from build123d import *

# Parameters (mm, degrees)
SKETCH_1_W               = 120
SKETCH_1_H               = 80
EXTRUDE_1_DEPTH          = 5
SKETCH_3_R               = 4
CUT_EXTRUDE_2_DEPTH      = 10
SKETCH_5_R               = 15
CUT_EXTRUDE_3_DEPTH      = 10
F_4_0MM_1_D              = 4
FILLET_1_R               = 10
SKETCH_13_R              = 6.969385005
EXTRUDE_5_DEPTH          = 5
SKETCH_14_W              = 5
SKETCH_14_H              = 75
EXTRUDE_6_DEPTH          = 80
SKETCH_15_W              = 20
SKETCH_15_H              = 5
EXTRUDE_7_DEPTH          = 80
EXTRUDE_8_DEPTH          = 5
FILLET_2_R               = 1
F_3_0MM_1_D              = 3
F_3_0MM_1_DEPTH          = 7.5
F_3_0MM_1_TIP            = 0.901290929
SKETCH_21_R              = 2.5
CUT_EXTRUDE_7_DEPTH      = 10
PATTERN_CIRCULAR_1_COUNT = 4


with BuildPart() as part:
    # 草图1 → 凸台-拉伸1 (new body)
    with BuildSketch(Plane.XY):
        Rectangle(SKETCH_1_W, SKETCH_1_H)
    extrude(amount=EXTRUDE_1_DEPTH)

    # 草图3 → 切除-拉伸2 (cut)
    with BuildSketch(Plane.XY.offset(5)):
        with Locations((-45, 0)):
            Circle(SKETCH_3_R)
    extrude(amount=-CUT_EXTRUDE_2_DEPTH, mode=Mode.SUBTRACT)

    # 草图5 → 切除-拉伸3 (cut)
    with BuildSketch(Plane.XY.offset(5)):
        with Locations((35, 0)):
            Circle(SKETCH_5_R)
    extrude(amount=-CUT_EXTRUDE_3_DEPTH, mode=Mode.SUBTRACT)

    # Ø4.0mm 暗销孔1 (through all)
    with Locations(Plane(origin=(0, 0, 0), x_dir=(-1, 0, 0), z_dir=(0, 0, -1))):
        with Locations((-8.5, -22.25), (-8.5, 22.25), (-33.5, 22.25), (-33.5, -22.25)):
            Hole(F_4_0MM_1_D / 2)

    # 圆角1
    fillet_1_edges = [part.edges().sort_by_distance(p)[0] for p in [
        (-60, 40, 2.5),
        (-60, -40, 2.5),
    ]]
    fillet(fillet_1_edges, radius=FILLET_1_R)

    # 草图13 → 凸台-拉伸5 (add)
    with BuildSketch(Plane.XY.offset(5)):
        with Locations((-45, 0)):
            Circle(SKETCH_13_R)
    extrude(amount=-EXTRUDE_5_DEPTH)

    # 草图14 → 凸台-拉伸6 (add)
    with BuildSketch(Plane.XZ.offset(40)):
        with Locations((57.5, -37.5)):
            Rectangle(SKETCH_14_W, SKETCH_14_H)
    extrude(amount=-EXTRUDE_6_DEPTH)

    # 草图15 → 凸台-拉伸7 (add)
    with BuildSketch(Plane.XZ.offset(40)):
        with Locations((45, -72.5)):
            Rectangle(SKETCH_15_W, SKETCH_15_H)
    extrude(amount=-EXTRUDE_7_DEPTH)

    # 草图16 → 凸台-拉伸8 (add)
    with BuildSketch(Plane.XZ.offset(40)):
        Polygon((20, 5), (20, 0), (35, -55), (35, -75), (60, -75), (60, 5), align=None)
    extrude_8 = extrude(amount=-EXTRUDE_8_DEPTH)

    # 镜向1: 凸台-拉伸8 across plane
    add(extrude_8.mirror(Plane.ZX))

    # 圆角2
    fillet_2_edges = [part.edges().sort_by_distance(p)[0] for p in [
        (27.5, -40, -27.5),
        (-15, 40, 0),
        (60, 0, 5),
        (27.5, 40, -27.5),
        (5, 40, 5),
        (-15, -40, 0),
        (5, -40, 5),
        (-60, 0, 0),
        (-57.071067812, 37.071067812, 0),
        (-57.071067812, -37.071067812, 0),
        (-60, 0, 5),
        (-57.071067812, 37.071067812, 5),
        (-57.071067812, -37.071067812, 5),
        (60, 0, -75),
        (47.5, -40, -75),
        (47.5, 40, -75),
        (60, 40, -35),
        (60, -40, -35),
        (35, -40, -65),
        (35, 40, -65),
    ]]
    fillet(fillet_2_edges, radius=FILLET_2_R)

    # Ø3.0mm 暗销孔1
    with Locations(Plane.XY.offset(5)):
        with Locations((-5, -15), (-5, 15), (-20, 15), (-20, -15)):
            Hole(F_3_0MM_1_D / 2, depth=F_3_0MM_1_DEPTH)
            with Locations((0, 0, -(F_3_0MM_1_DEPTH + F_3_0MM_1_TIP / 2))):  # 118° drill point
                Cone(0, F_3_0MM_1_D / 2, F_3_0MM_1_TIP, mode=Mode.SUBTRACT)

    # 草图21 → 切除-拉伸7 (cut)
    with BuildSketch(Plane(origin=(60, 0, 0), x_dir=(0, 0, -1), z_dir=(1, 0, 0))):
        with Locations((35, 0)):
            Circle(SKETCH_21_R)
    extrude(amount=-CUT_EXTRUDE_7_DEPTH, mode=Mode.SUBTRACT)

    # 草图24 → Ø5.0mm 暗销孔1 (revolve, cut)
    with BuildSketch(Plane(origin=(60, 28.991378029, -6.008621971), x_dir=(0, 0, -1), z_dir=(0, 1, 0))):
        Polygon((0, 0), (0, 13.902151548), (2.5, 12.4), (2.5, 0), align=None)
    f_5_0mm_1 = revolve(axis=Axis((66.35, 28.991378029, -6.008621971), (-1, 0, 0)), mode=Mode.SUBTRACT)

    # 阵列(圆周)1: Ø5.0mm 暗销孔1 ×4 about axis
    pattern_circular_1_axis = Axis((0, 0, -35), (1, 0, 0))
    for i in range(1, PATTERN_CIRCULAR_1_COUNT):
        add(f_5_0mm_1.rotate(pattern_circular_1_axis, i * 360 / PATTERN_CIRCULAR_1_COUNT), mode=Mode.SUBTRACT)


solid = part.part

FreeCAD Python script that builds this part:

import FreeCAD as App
import Part
import Sketcher
Q = App.Units.Quantity


def edges_at(feature, points):
    """Names of the edges that pass closest to the given points."""
    edges = feature.Shape.Edges
    near = lambda p: min(range(len(edges)), key=lambda i: edges[i].distToShape(Part.Vertex(*p))[0])
    return sorted({f"Edge{near(p) + 1}" for p in points})

doc = App.newDocument("Part")
body = doc.addObject("PartDesign::Body", "Body")

# Sketch on XY plane
sketch1 = body.newObject("Sketcher::SketchObject", "Sketch")
sketch1.AttachmentSupport = (doc.getObject("XY_Plane"), [""])
sketch1.MapMode = "FlatFace"
sketch1.addGeometry(Part.LineSegment(App.Vector(-60, 40, 0), App.Vector(-60, -40, 0)), False)
sketch1.addGeometry(Part.LineSegment(App.Vector(-60, -40, 0), App.Vector(60, -40, 0)), False)
sketch1.addGeometry(Part.LineSegment(App.Vector(60, -40, 0), App.Vector(60, 40, 0)), False)
sketch1.addGeometry(Part.LineSegment(App.Vector(60, 40, 0), App.Vector(-60, 40, 0)), False)
sketch1.addConstraint(Sketcher.Constraint("Coincident", 0, 2, 1, 1))
sketch1.addConstraint(Sketcher.Constraint("Coincident", 1, 2, 2, 1))
sketch1.addConstraint(Sketcher.Constraint("Coincident", 2, 2, 3, 1))
sketch1.addConstraint(Sketcher.Constraint("Coincident", 3, 2, 0, 1))
sketch1.addConstraint(Sketcher.Constraint("Vertical", 0))
sketch1.addConstraint(Sketcher.Constraint("Horizontal", 1))
sketch1.addConstraint(Sketcher.Constraint("Vertical", 2))
sketch1.addConstraint(Sketcher.Constraint("Horizontal", 3))
sketch1.addConstraint(Sketcher.Constraint("Symmetric", 0, 2, 2, 2, -1, 1))
sketch1.addConstraint(Sketcher.Constraint("DistanceX", 1, 1, 1, 2, 120.0))
sketch1.addConstraint(Sketcher.Constraint("DistanceY", 0, 2, 0, 1, 80.0))
pad1 = body.newObject("PartDesign::Pad", "Pad")
pad1.Profile = sketch1
pad1.Length = 5

# Sketch on XY plane
sketch2 = body.newObject("Sketcher::SketchObject", "Sketch001")
sketch2.AttachmentSupport = (doc.getObject("XY_Plane"), [""])
sketch2.MapMode = "FlatFace"
sketch2.AttachmentOffset = App.Placement(App.Vector(0, 0, 5), App.Rotation())
sketch2.addGeometry(Part.Circle(App.Vector(-45, 0, 0), App.Vector(0, 0, 1), 4), False)
sketch2.addConstraint(Sketcher.Constraint("PointOnObject", 0, 3, -1))
sketch2.addConstraint(Sketcher.Constraint("Diameter", 0, 8.0))
sketch2.addConstraint(Sketcher.Constraint("DistanceX", 0, 3, -1, 1, 45.0))
pocket1 = body.newObject("PartDesign::Pocket", "Pocket")
pocket1.Profile = sketch2
pocket1.Length = 10

# Sketch on XY plane
sketch3 = body.newObject("Sketcher::SketchObject", "Sketch002")
sketch3.AttachmentSupport = (doc.getObject("XY_Plane"), [""])
sketch3.MapMode = "FlatFace"
sketch3.AttachmentOffset = App.Placement(App.Vector(0, 0, 5), App.Rotation())
sketch3.addGeometry(Part.Circle(App.Vector(35, 0, 0), App.Vector(0, 0, 1), 15), False)
sketch3.addConstraint(Sketcher.Constraint("PointOnObject", 0, 3, -1))
sketch3.addConstraint(Sketcher.Constraint("Diameter", 0, 30.0))
sketch3.addConstraint(Sketcher.Constraint("DistanceX", -1, 1, 0, 3, 35.0))
pocket2 = body.newObject("PartDesign::Pocket", "Pocket001")
pocket2.Profile = sketch3
pocket2.Length = 10

# Sketch on XY plane
sketch4 = body.newObject("Sketcher::SketchObject", "Sketch003")
sketch4.AttachmentSupport = (doc.getObject("XY_Plane"), [""])
sketch4.MapMode = "FlatFace"
sketch4.addGeometry(Part.Circle(App.Vector(8.5, -22.25, 0), App.Vector(0, 0, 1), 2), False)
sketch4.addGeometry(Part.Circle(App.Vector(8.5, 22.25, 0), App.Vector(0, 0, 1), 2), False)
sketch4.addGeometry(Part.Circle(App.Vector(33.5, 22.25, 0), App.Vector(0, 0, 1), 2), False)
sketch4.addGeometry(Part.Circle(App.Vector(33.5, -22.25, 0), App.Vector(0, 0, 1), 2), False)
sketch4.addConstraint(Sketcher.Constraint("Equal", 0, 1))
sketch4.addConstraint(Sketcher.Constraint("Equal", 1, 2))
sketch4.addConstraint(Sketcher.Constraint("Equal", 2, 3))
sketch4.addConstraint(Sketcher.Constraint("Symmetric", 0, 3, 1, 3, -1))
sketch4.addConstraint(Sketcher.Constraint("Symmetric", 2, 3, 3, 3, -1))
sketch4.addConstraint(Sketcher.Constraint("Horizontal", 1, 3, 2, 3))
sketch4.addConstraint(Sketcher.Constraint("Diameter", 0, 4.0))
sketch4.addConstraint(Sketcher.Constraint("DistanceX", 1, 3, 2, 3, 25.0))
sketch4.addConstraint(Sketcher.Constraint("DistanceX", -1, 1, 0, 3, 8.5))
sketch4.addConstraint(Sketcher.Constraint("DistanceY", 0, 3, 1, 3, 44.5))
doc.recompute()
hole = body.newObject("PartDesign::Hole", "Hole")
hole.Profile = sketch4
hole.ThreadType = "None"
hole.Diameter = 4
hole.DepthType = "ThroughAll"
hole.Reversed = True
doc.recompute()

fillet = body.newObject("PartDesign::Fillet", "Fillet")
fillet.Base = (hole, edges_at(hole, [(-60, 40, 2.5), (-60, -40, 2.5)]))
fillet.Radius = 10

# Sketch on XY plane
sketch5 = body.newObject("Sketcher::SketchObject", "Sketch004")
sketch5.AttachmentSupport = (doc.getObject("XY_Plane"), [""])
sketch5.MapMode = "FlatFace"
sketch5.AttachmentOffset = App.Placement(App.Vector(0, 0, 5), App.Rotation())
sketch5.addGeometry(Part.Circle(App.Vector(-45, 0, 0), App.Vector(0, 0, 1), 6.969385), False)
sketch5.addConstraint(Sketcher.Constraint("PointOnObject", 0, 3, -1))
sketch5.addConstraint(Sketcher.Constraint("DistanceX", 0, 3, -1, 1, 45.0))
sketch5.addConstraint(Sketcher.Constraint("Diameter", 0, 13.93877))
pad2 = body.newObject("PartDesign::Pad", "Pad001")
pad2.Profile = sketch5
pad2.Length = 5
pad2.Reversed = True

# Sketch on XZ plane
sketch6 = body.newObject("Sketcher::SketchObject", "Sketch005")
sketch6.AttachmentSupport = (doc.getObject("XZ_Plane"), [""])
sketch6.MapMode = "FlatFace"
sketch6.AttachmentOffset = App.Placement(App.Vector(0, 0, 40), App.Rotation())
sketch6.addGeometry(Part.LineSegment(App.Vector(55, 0, 0), App.Vector(55, -75, 0)), False)
sketch6.addGeometry(Part.LineSegment(App.Vector(55, -75, 0), App.Vector(60, -75, 0)), False)
sketch6.addGeometry(Part.LineSegment(App.Vector(60, -75, 0), App.Vector(60, 0, 0)), False)
sketch6.addGeometry(Part.LineSegment(App.Vector(60, 0, 0), App.Vector(55, 0, 0)), False)
sketch6.addConstraint(Sketcher.Constraint("Coincident", 0, 2, 1, 1))
sketch6.addConstraint(Sketcher.Constraint("Coincident", 1, 2, 2, 1))
sketch6.addConstraint(Sketcher.Constraint("Coincident", 2, 2, 3, 1))
sketch6.addConstraint(Sketcher.Constraint("Coincident", 3, 2, 0, 1))
sketch6.addConstraint(Sketcher.Constraint("Vertical", 0))
sketch6.addConstraint(Sketcher.Constraint("Horizontal", 1))
sketch6.addConstraint(Sketcher.Constraint("Vertical", 2))
sketch6.addConstraint(Sketcher.Constraint("Horizontal", 3))
sketch6.addConstraint(Sketcher.Constraint("PointOnObject", 2, 2, -1))
sketch6.addConstraint(Sketcher.Constraint("DistanceX", 1, 1, 1, 2, 5.0))
sketch6.addConstraint(Sketcher.Constraint("DistanceY", 0, 2, 0, 1, 75.0))
sketch6.addConstraint(Sketcher.Constraint("DistanceX", -1, 1, 0, 2, 55.0))
pad3 = body.newObject("PartDesign::Pad", "Pad002")
pad3.Profile = sketch6
pad3.Length = 80
pad3.Reversed = True

# Sketch on XZ plane
sketch7 = body.newObject("Sketcher::SketchObject", "Sketch006")
sketch7.AttachmentSupport = (doc.getObject("XZ_Plane"), [""])
sketch7.MapMode = "FlatFace"
sketch7.AttachmentOffset = App.Placement(App.Vector(0, 0, 40), App.Rotation())
sketch7.addGeometry(Part.LineSegment(App.Vector(35, -70, 0), App.Vector(35, -75, 0)), False)
sketch7.addGeometry(Part.LineSegment(App.Vector(35, -75, 0), App.Vector(55, -75, 0)), False)
sketch7.addGeometry(Part.LineSegment(App.Vector(55, -75, 0), App.Vector(55, -70, 0)), False)
sketch7.addGeometry(Part.LineSegment(App.Vector(55, -70, 0), App.Vector(35, -70, 0)), False)
sketch7.addConstraint(Sketcher.Constraint("Coincident", 0, 2, 1, 1))
sketch7.addConstraint(Sketcher.Constraint("Coincident", 1, 2, 2, 1))
sketch7.addConstraint(Sketcher.Constraint("Coincident", 2, 2, 3, 1))
sketch7.addConstraint(Sketcher.Constraint("Coincident", 3, 2, 0, 1))
sketch7.addConstraint(Sketcher.Constraint("Vertical", 0))
sketch7.addConstraint(Sketcher.Constraint("Horizontal", 1))
sketch7.addConstraint(Sketcher.Constraint("Vertical", 2))
sketch7.addConstraint(Sketcher.Constraint("Horizontal", 3))
sketch7.addConstraint(Sketcher.Constraint("DistanceX", 1, 1, 1, 2, 20.0))
sketch7.addConstraint(Sketcher.Constraint("DistanceY", 0, 2, 0, 1, 5.0))
sketch7.addConstraint(Sketcher.Constraint("DistanceX", -1, 1, 0, 2, 35.0))
sketch7.addConstraint(Sketcher.Constraint("DistanceY", 0, 2, -1, 1, 75.0))
pad4 = body.newObject("PartDesign::Pad", "Pad003")
pad4.Profile = sketch7
pad4.Length = 80
pad4.Reversed = True

# Sketch on XZ plane
sketch8 = body.newObject("Sketcher::SketchObject", "Sketch007")
sketch8.AttachmentSupport = (doc.getObject("XZ_Plane"), [""])
sketch8.MapMode = "FlatFace"
sketch8.AttachmentOffset = App.Placement(App.Vector(0, 0, 40), App.Rotation())
sketch8.addGeometry(Part.LineSegment(App.Vector(20, 5, 0), App.Vector(20, 0, 0)), False)
sketch8.addGeometry(Part.LineSegment(App.Vector(20, 0, 0), App.Vector(35, -55, 0)), False)
sketch8.addGeometry(Part.LineSegment(App.Vector(35, -55, 0), App.Vector(35, -75, 0)), False)
sketch8.addGeometry(Part.LineSegment(App.Vector(35, -75, 0), App.Vector(60, -75, 0)), False)
sketch8.addGeometry(Part.LineSegment(App.Vector(60, -75, 0), App.Vector(60, 5, 0)), False)
sketch8.addGeometry(Part.LineSegment(App.Vector(60, 5, 0), App.Vector(20, 5, 0)), False)
sketch8.addConstraint(Sketcher.Constraint("Coincident", 0, 2, 1, 1))
sketch8.addConstraint(Sketcher.Constraint("Coincident", 1, 2, 2, 1))
sketch8.addConstraint(Sketcher.Constraint("Coincident", 2, 2, 3, 1))
sketch8.addConstraint(Sketcher.Constraint("Coincident", 3, 2, 4, 1))
sketch8.addConstraint(Sketcher.Constraint("Coincident", 4, 2, 5, 1))
sketch8.addConstraint(Sketcher.Constraint("Coincident", 5, 2, 0, 1))
sketch8.addConstraint(Sketcher.Constraint("Vertical", 0))
sketch8.addConstraint(Sketcher.Constraint("Vertical", 2))
sketch8.addConstraint(Sketcher.Constraint("Horizontal", 3))
sketch8.addConstraint(Sketcher.Constraint("Vertical", 4))
sketch8.addConstraint(Sketcher.Constraint("Horizontal", 5))
sketch8.addConstraint(Sketcher.Constraint("PointOnObject", 0, 2, -1))
sketch8.addConstraint(Sketcher.Constraint("DistanceX", 3, 1, 3, 2, 25.0))
sketch8.addConstraint(Sketcher.Constraint("DistanceX", 5, 2, 5, 1, 40.0))
sketch8.addConstraint(Sketcher.Constraint("DistanceY", 0, 2, 0, 1, 5.0))
sketch8.addConstraint(Sketcher.Constraint("DistanceY", 2, 2, 2, 1, 20.0))
sketch8.addConstraint(Sketcher.Constraint("DistanceY", 4, 1, 4, 2, 80.0))
sketch8.addConstraint(Sketcher.Constraint("DistanceX", -1, 1, 0, 2, 20.0))
pad5 = body.newObject("PartDesign::Pad", "Pad004")
pad5.Profile = sketch8
pad5.Length = 5
pad5.Reversed = True
doc.recompute()

mirrored = body.newObject("PartDesign::Mirrored", "Mirrored")
mirrored.Originals = [pad5]
mirrored.MirrorPlane = (doc.getObject("XZ_Plane"), [""])
body.Tip = mirrored
doc.recompute()

fillet2 = body.newObject("PartDesign::Fillet", "Fillet001")
fillet2.Base = (mirrored, edges_at(mirrored, [
    (27.5, -40, -27.5),
    (-15, 40, 0),
    (60, 0, 5),
    (27.5, 40, -27.5),
    (5, 40, 5),
    (-15, -40, 0),
    (5, -40, 5),
    (-60, 0, 0),
    (-57.071, 37.071, 0),
    (-57.071, -37.071, 0),
    (-60, 0, 5),
    (-57.071, 37.071, 5),
    (-57.071, -37.071, 5),
    (60, 0, -75),
    (47.5, -40, -75),
    (47.5, 40, -75),
    (60, 40, -35),
    (60, -40, -35),
    (35, -40, -65),
    (35, 40, -65),
]))
fillet2.Radius = 1

# Sketch on XY plane
sketch9 = body.newObject("Sketcher::SketchObject", "Sketch008")
sketch9.AttachmentSupport = (doc.getObject("XY_Plane"), [""])
sketch9.MapMode = "FlatFace"
sketch9.AttachmentOffset = App.Placement(App.Vector(0, 0, 5), App.Rotation())
sketch9.addGeometry(Part.Circle(App.Vector(-5, -15, 0), App.Vector(0, 0, 1), 1.5), False)
sketch9.addGeometry(Part.Circle(App.Vector(-5, 15, 0), App.Vector(0, 0, 1), 1.5), False)
sketch9.addGeometry(Part.Circle(App.Vector(-20, 15, 0), App.Vector(0, 0, 1), 1.5), False)
sketch9.addGeometry(Part.Circle(App.Vector(-20, -15, 0), App.Vector(0, 0, 1), 1.5), False)
sketch9.addConstraint(Sketcher.Constraint("Equal", 0, 1))
sketch9.addConstraint(Sketcher.Constraint("Equal", 1, 2))
sketch9.addConstraint(Sketcher.Constraint("Equal", 2, 3))
sketch9.addConstraint(Sketcher.Constraint("Symmetric", 0, 3, 1, 3, -1))
sketch9.addConstraint(Sketcher.Constraint("Symmetric", 2, 3, 3, 3, -1))
sketch9.addConstraint(Sketcher.Constraint("Horizontal", 1, 3, 2, 3))
sketch9.addConstraint(Sketcher.Constraint("Diameter", 0, 3.0))
sketch9.addConstraint(Sketcher.Constraint("DistanceX", 0, 3, -1, 1, 5.0))
sketch9.addConstraint(Sketcher.Constraint("DistanceY", 0, 3, -1, 1, 15.0))
sketch9.addConstraint(Sketcher.Constraint("DistanceX", 2, 3, -1, 1, 20.0))
doc.recompute()
hole2 = body.newObject("PartDesign::Hole", "Hole001")
hole2.Profile = sketch9
hole2.ThreadType = "None"
hole2.Diameter = 3
hole2.DepthType = "Dimension"
hole2.Depth = 7.5
hole2.DrillPoint = "Angled"
hole2.DrillPointAngle = 118

# Sketch on YZ plane
sketch10 = body.newObject("Sketcher::SketchObject", "Sketch009")
sketch10.AttachmentSupport = (doc.getObject("YZ_Plane"), [""])
sketch10.MapMode = "FlatFace"
sketch10.AttachmentOffset = App.Placement(App.Vector(0, 0, 60), App.Rotation())
sketch10.addGeometry(Part.Circle(App.Vector(0, -35, 0), App.Vector(0, 0, 1), 2.5), False)
sketch10.addConstraint(Sketcher.Constraint("PointOnObject", 0, 3, -2))
sketch10.addConstraint(Sketcher.Constraint("Diameter", 0, 5.0))
sketch10.addConstraint(Sketcher.Constraint("DistanceY", 0, 3, -1, 1, 35.0))
pocket3 = body.newObject("PartDesign::Pocket", "Pocket002")
pocket3.Profile = sketch10
pocket3.Length = 10

# Sketch on XZ plane
sketch11 = body.newObject("Sketcher::SketchObject", "Sketch010")
sketch11.AttachmentSupport = (doc.getObject("XZ_Plane"), [""])
sketch11.MapMode = "FlatFace"
sketch11.AttachmentOffset = App.Placement(App.Vector(0, 0, -28.991378), App.Rotation())
sketch11.addGeometry(Part.LineSegment(App.Vector(46.097848, -6.008622, 0), App.Vector(60, -6.008622, 0)), False)
sketch11.addGeometry(Part.LineSegment(App.Vector(60, -6.008622, 0), App.Vector(60, -8.508622, 0)), False)
sketch11.addGeometry(Part.LineSegment(App.Vector(60, -8.508622, 0), App.Vector(47.6, -8.508622, 0)), False)
sketch11.addGeometry(Part.LineSegment(App.Vector(47.6, -8.508622, 0), App.Vector(46.097848, -6.008622, 0)), False)
sketch11.addGeometry(Part.LineSegment(App.Vector(60, -6.008622, 0), App.Vector(46.097848, -6.008622, 0)), True)  # axis
sketch11.addConstraint(Sketcher.Constraint("Coincident", 0, 2, 1, 1))
sketch11.addConstraint(Sketcher.Constraint("Coincident", 1, 2, 2, 1))
sketch11.addConstraint(Sketcher.Constraint("Coincident", 2, 2, 3, 1))
sketch11.addConstraint(Sketcher.Constraint("Coincident", 3, 2, 0, 1))
sketch11.addConstraint(Sketcher.Constraint("Horizontal", 0))
sketch11.addConstraint(Sketcher.Constraint("Vertical", 1))
sketch11.addConstraint(Sketcher.Constraint("Horizontal", 2))
sketch11.addConstraint(Sketcher.Constraint("Horizontal", 4))
sketch11.addConstraint(Sketcher.Constraint("Coincident", 4, 1, 0, 2))
sketch11.addConstraint(Sketcher.Constraint("Equal", 0, 4))
sketch11.addConstraint(Sketcher.Constraint("Angle", 3, Q("121 deg")))
sketch11.addConstraint(Sketcher.Constraint("DistanceX", 2, 2, 2, 1, 12.4))
sketch11.addConstraint(Sketcher.Constraint("DistanceY", 1, 2, 1, 1, 2.5))
sketch11.addConstraint(Sketcher.Constraint("DistanceX", -1, 1, 0, 2, 60.0))
sketch11.addConstraint(Sketcher.Constraint("DistanceY", 0, 2, -1, 1, 6.008622))
groove = body.newObject("PartDesign::Groove", "Groove")
groove.Profile = sketch11
groove.ReferenceAxis = (sketch11, ["Axis0"])
groove.Angle = 360
doc.recompute()

datumline = body.newObject("PartDesign::Line", "DatumLine")
datumline.Placement = App.Placement(App.Vector(0, 0, -35), App.Rotation(App.Vector(0, 0, 1), App.Vector(1, 0, 0)))
polarpattern = body.newObject("PartDesign::PolarPattern", "PolarPattern")
polarpattern.Originals = [groove]
polarpattern.Axis = (datumline, [""])
polarpattern.Angle = 360
polarpattern.Occurrences = 4
body.Tip = polarpattern

doc.recompute()
